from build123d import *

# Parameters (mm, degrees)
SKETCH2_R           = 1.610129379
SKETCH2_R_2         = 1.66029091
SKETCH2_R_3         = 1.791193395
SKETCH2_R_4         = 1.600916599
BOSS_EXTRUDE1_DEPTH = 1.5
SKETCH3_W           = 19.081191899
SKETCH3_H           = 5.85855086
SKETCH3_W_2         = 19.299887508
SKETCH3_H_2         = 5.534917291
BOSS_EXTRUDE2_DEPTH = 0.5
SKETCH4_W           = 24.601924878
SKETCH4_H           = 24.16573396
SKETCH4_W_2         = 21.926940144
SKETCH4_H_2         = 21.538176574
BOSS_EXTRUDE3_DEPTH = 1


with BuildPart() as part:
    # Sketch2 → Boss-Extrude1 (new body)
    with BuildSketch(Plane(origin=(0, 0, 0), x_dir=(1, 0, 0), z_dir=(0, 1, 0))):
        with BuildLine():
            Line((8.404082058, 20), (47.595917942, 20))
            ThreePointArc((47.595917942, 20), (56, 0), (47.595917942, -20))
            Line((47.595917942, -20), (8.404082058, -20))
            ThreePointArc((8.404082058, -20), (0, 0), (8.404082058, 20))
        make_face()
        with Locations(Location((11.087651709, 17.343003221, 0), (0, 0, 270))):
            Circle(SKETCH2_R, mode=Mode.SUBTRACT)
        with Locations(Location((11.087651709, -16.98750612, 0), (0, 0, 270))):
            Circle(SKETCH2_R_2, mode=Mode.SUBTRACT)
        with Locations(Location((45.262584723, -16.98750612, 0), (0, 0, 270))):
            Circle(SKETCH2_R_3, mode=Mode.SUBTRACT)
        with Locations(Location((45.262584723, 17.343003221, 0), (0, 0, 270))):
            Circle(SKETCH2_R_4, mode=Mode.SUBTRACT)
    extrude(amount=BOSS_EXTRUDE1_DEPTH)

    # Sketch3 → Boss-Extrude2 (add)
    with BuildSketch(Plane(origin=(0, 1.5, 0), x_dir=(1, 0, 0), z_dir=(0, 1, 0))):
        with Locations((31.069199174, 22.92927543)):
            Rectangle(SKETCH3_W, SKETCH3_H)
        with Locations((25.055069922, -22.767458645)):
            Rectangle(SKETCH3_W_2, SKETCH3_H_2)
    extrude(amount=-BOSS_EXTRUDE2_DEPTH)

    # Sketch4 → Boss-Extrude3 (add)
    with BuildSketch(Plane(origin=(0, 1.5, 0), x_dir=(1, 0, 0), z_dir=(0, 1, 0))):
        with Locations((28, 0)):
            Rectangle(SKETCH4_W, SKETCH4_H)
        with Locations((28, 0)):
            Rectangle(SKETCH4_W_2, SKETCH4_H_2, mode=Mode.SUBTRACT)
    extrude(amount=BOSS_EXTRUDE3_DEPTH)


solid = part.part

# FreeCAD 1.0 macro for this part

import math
import FreeCAD as App
import Part
import Sketcher
Q = App.Units.Quantity

doc = App.newDocument("Part")
params = doc.addObject("Spreadsheet::Sheet", "Params")
for row, (alias, value) in enumerate([
    ("sketch1_radius", "28 mm"),
    ("pad1_length", "1.5 mm"),
    ("pad2_length", "0.5 mm"),
    ("pad3_length", "1 mm"),
], start=1):
    params.set(f"A{row}", alias)
    params.set(f"B{row}", "=" + value)
    params.setAlias(f"B{row}", alias)

body = doc.addObject("PartDesign::Body", "Body")

# Sketch on XZ plane
sketch1 = body.newObject("Sketcher::SketchObject", "Sketch")
sketch1.AttachmentSupport = (doc.getObject("XZ_Plane"), [""])
sketch1.MapMode = "FlatFace"
sketch1.addGeometry(Part.LineSegment(App.Vector(47.6, -20, 0), App.Vector(8.4, -20, 0)), False)
sketch1.addGeometry(Part.ArcOfCircle(Part.Circle(App.Vector(28, 0, 0), App.Vector(0, 0, 1), 28), math.radians(134), math.radians(226)), False)
sketch1.addGeometry(Part.LineSegment(App.Vector(8.4, 20, 0), App.Vector(47.6, 20, 0)), False)
sketch1.addGeometry(Part.ArcOfCircle(Part.Circle(App.Vector(28, 0, 0), App.Vector(0, 0, 1), 28), math.radians(-46), math.radians(46)), False)
sketch1.addGeometry(Part.Circle(App.Vector(45.3, 17, 0), App.Vector(0, 0, 1), 1.8), False)
sketch1.addGeometry(Part.Circle(App.Vector(11.1, 17, 0), App.Vector(0, 0, 1), 1.7), False)
sketch1.addGeometry(Part.Circle(App.Vector(45.3, -17.3, 0), App.Vector(0, 0, 1), 1.6), False)
sketch1.addGeometry(Part.Circle(App.Vector(11.1, -17.3, 0), App.Vector(0, 0, 1), 1.6), False)
sketch1.addConstraint(Sketcher.Constraint("Coincident", 0, 2, 1, 2))
sketch1.addConstraint(Sketcher.Constraint("Coincident", 1, 1, 2, 1))
sketch1.addConstraint(Sketcher.Constraint("Coincident", 2, 2, 3, 2))
sketch1.addConstraint(Sketcher.Constraint("Coincident", 3, 1, 0, 1))
sketch1.addConstraint(Sketcher.Constraint("Horizontal", 0))
sketch1.addConstraint(Sketcher.Constraint("Horizontal", 2))
sketch1.addConstraint(Sketcher.Constraint("Coincident", 3, 3, 1, 3))
sketch1.addConstraint(Sketcher.Constraint("Equal", 1, 3))
sketch1.addConstraint(Sketcher.Constraint("Symmetric", 0, 2, 1, 1, -1))
sketch1.addConstraint(Sketcher.Constraint("Horizontal", 4, 3, 5, 3))
sketch1.addConstraint(Sketcher.Constraint("Horizontal", 6, 3, 7, 3))
sketch1.addConstraint(Sketcher.Constraint("Vertical", 4, 3, 6, 3))
sketch1.addConstraint(Sketcher.Constraint("Vertical", 5, 3, 7, 3))
sketch1.addConstraint(Sketcher.Constraint("Radius", 1, Q("28 mm")))
sketch1.addConstraint(Sketcher.Constraint("DistanceX", -1, 1, 1, 3, Q("28 mm")))
sketch1.addConstraint(Sketcher.Constraint("DistanceY", 0, 2, -1, 1, Q("20 mm")))
sketch1.addConstraint(Sketcher.Constraint("Diameter", 5, Q("3.320582 mm")))
sketch1.addConstraint(Sketcher.Constraint("Diameter", 7, Q("3.220259 mm")))
sketch1.addConstraint(Sketcher.Constraint("Diameter", 4, Q("3.582387 mm")))
sketch1.addConstraint(Sketcher.Constraint("Diameter", 6, Q("3.201833 mm")))
sketch1.addConstraint(Sketcher.Constraint("DistanceX", -1, 1, 5, 3, Q("11.087652 mm")))
sketch1.addConstraint(Sketcher.Constraint("DistanceY", 6, 3, 4, 3, Q("34.330509 mm")))
sketch1.addConstraint(Sketcher.Constraint("DistanceX", -1, 1, 4, 3, Q("45.262585 mm")))
sketch1.addConstraint(Sketcher.Constraint("DistanceY", -1, 1, 4, 3, Q("16.987506 mm")))
sketch1.setExpression("Constraints[13]", "Params.sketch1_radius")
pad1 = body.newObject("PartDesign::Pad", "Pad")
pad1.Profile = sketch1
pad1.setExpression("Length", "Params.pad1_length")
pad1.Reversed = True

# Sketch on XZ plane
sketch2 = body.newObject("Sketcher::SketchObject", "Sketch001")
sketch2.AttachmentSupport = (doc.getObject("XZ_Plane"), [""])
sketch2.MapMode = "FlatFace"
sketch2.AttachmentOffset = App.Placement(App.Vector(0, 0, -1.5), App.Rotation())
sketch2.addGeometry(Part.LineSegment(App.Vector(22, -26, 0), App.Vector(22, -20, 0)), False)
sketch2.addGeometry(Part.LineSegment(App.Vector(22, -20, 0), App.Vector(41, -20, 0)), False)
sketch2.addGeometry(Part.LineSegment(App.Vector(41, -20, 0), App.Vector(41, -26, 0)), False)
sketch2.addGeometry(Part.LineSegment(App.Vector(41, -26, 0), App.Vector(22, -26, 0)), False)
sketch2.addGeometry(Part.LineSegment(App.Vector(15, 20, 0), App.Vector(15, 26, 0)), False)
sketch2.addGeometry(Part.LineSegment(App.Vector(15, 26, 0), App.Vector(35, 26, 0)), False)
sketch2.addGeometry(Part.LineSegment(App.Vector(35, 26, 0), App.Vector(35, 20, 0)), False)
sketch2.addGeometry(Part.LineSegment(App.Vector(35, 20, 0), App.Vector(15, 20, 0)), False)
sketch2.addConstraint(Sketcher.Constraint("Coincident", 0, 2, 1, 1))
sketch2.addConstraint(Sketcher.Constraint("Coincident", 1, 2, 2, 1))
sketch2.addConstraint(Sketcher.Constraint("Coincident", 2, 2, 3, 1))
sketch2.addConstraint(Sketcher.Constraint("Coincident", 3, 2, 0, 1))
sketch2.addConstraint(Sketcher.Constraint("Coincident", 4, 2, 5, 1))
sketch2.addConstraint(Sketcher.Constraint("Coincident", 5, 2, 6, 1))
sketch2.addConstraint(Sketcher.Constraint("Coincident", 6, 2, 7, 1))
sketch2.addConstraint(Sketcher.Constraint("Coincident", 7, 2, 4, 1))
sketch2.addConstraint(Sketcher.Constraint("Vertical", 0))
sketch2.addConstraint(Sketcher.Constraint("Horizontal", 1))
sketch2.addConstraint(Sketcher.Constraint("Vertical", 2))
sketch2.addConstraint(Sketcher.Constraint("Horizontal", 3))
sketch2.addConstraint(Sketcher.Constraint("Vertical", 4))
sketch2.addConstraint(Sketcher.Constraint("Horizontal", 5))
sketch2.addConstraint(Sketcher.Constraint("Vertical", 6))
sketch2.addConstraint(Sketcher.Constraint("Horizontal", 7))
sketch2.addConstraint(Sketcher.Constraint("DistanceY", 0, 2, -1, 1, Q("20 mm")))
sketch2.addConstraint(Sketcher.Constraint("DistanceY", -1, 1, 6, 2, Q("20 mm")))
sketch2.addConstraint(Sketcher.Constraint("DistanceX", 1, 1, 1, 2, Q("19.081192 mm")))
sketch2.addConstraint(Sketcher.Constraint("DistanceY", 0, 1, 0, 2, Q("5.858551 mm")))
sketch2.addConstraint(Sketcher.Constraint("DistanceX", 5, 1, 5, 2, Q("19.299888 mm")))
sketch2.addConstraint(Sketcher.Constraint("DistanceY", 4, 1, 4, 2, Q("5.534917 mm")))
sketch2.addConstraint(Sketcher.Constraint("DistanceX", 4, 2, 1, 2, Q("25.204669 mm")))
sketch2.addConstraint(Sketcher.Constraint("DistanceX", -1, 1, 0, 2, Q("21.528603 mm")))
pad2 = body.newObject("PartDesign::Pad", "Pad001")
pad2.Profile = sketch2
pad2.setExpression("Length", "Params.pad2_length")

# Sketch on XZ plane
sketch3 = body.newObject("Sketcher::SketchObject", "Sketch002")
sketch3.AttachmentSupport = (doc.getObject("XZ_Plane"), [""])
sketch3.MapMode = "FlatFace"
sketch3.AttachmentOffset = App.Placement(App.Vector(0, 0, -1.5), App.Rotation())
sketch3.addGeometry(Part.LineSegment(App.Vector(16, -12, 0), App.Vector(16, 12, 0)), False)
sketch3.addGeometry(Part.LineSegment(App.Vector(16, 12, 0), App.Vector(40, 12, 0)), False)
sketch3.addGeometry(Part.LineSegment(App.Vector(40, 12, 0), App.Vector(40, -12, 0)), False)
sketch3.addGeometry(Part.LineSegment(App.Vector(40, -12, 0), App.Vector(16, -12, 0)), False)
sketch3.addGeometry(Part.LineSegment(App.Vector(39, 11, 0), App.Vector(17, 11, 0)), False)
sketch3.addGeometry(Part.LineSegment(App.Vector(17, 11, 0), App.Vector(17, -11, 0)), False)
sketch3.addGeometry(Part.LineSegment(App.Vector(17, -11, 0), App.Vector(39, -11, 0)), False)
sketch3.addGeometry(Part.LineSegment(App.Vector(39, -11, 0), App.Vector(39, 11, 0)), False)
sketch3.addConstraint(Sketcher.Constraint("Coincident", 0, 2, 1, 1))
sketch3.addConstraint(Sketcher.Constraint("Coincident", 1, 2, 2, 1))
sketch3.addConstraint(Sketcher.Constraint("Coincident", 2, 2, 3, 1))
sketch3.addConstraint(Sketcher.Constraint("Coincident", 3, 2, 0, 1))
sketch3.addConstraint(Sketcher.Constraint("Coincident", 4, 2, 5, 1))
sketch3.addConstraint(Sketcher.Constraint("Coincident", 5, 2, 6, 1))
sketch3.addConstraint(Sketcher.Constraint("Coincident", 6, 2, 7, 1))
sketch3.addConstraint(Sketcher.Constraint("Coincident", 7, 2, 4, 1))
sketch3.addConstraint(Sketcher.Constraint("Vertical", 0))
sketch3.addConstraint(Sketcher.Constraint("Horizontal", 1))
sketch3.addConstraint(Sketcher.Constraint("Vertical", 2))
sketch3.addConstraint(Sketcher.Constraint("Horizontal", 3))
sketch3.addConstraint(Sketcher.Constraint("Horizontal", 4))
sketch3.addConstraint(Sketcher.Constraint("Vertical", 5))
sketch3.addConstraint(Sketcher.Constraint("Horizontal", 6))
sketch3.addConstraint(Sketcher.Constraint("Vertical", 7))
sketch3.addConstraint(Sketcher.Constraint("DistanceX", 4, 2, 4, 1, Q("21.92694 mm")))
sketch3.addConstraint(Sketcher.Constraint("DistanceX", 1, 1, 1, 2, Q("24.601925 mm")))
sketch3.addConstraint(Sketcher.Constraint("DistanceY", 0, 1, 0, 2, Q("24.165734 mm")))
sketch3.addConstraint(Sketcher.Constraint("DistanceY", 5, 2, 5, 1, Q("21.538177 mm")))
sketch3.addConstraint(Sketcher.Constraint("DistanceX", -1, 1, 4, 2, Q("17.03653 mm")))
sketch3.addConstraint(Sketcher.Constraint("DistanceY", -1, 1, 4, 2, Q("10.769088 mm")))
sketch3.addConstraint(Sketcher.Constraint("DistanceY", 4, 2, 0, 2, Q("1.313779 mm")))
sketch3.addConstraint(Sketcher.Constraint("DistanceX", -1, 1, 0, 2, Q("15.699038 mm")))
pad3 = body.newObject("PartDesign::Pad", "Pad002")
pad3.Profile = sketch3
pad3.setExpression("Length", "Params.pad3_length")
pad3.Reversed = True

doc.recompute()
